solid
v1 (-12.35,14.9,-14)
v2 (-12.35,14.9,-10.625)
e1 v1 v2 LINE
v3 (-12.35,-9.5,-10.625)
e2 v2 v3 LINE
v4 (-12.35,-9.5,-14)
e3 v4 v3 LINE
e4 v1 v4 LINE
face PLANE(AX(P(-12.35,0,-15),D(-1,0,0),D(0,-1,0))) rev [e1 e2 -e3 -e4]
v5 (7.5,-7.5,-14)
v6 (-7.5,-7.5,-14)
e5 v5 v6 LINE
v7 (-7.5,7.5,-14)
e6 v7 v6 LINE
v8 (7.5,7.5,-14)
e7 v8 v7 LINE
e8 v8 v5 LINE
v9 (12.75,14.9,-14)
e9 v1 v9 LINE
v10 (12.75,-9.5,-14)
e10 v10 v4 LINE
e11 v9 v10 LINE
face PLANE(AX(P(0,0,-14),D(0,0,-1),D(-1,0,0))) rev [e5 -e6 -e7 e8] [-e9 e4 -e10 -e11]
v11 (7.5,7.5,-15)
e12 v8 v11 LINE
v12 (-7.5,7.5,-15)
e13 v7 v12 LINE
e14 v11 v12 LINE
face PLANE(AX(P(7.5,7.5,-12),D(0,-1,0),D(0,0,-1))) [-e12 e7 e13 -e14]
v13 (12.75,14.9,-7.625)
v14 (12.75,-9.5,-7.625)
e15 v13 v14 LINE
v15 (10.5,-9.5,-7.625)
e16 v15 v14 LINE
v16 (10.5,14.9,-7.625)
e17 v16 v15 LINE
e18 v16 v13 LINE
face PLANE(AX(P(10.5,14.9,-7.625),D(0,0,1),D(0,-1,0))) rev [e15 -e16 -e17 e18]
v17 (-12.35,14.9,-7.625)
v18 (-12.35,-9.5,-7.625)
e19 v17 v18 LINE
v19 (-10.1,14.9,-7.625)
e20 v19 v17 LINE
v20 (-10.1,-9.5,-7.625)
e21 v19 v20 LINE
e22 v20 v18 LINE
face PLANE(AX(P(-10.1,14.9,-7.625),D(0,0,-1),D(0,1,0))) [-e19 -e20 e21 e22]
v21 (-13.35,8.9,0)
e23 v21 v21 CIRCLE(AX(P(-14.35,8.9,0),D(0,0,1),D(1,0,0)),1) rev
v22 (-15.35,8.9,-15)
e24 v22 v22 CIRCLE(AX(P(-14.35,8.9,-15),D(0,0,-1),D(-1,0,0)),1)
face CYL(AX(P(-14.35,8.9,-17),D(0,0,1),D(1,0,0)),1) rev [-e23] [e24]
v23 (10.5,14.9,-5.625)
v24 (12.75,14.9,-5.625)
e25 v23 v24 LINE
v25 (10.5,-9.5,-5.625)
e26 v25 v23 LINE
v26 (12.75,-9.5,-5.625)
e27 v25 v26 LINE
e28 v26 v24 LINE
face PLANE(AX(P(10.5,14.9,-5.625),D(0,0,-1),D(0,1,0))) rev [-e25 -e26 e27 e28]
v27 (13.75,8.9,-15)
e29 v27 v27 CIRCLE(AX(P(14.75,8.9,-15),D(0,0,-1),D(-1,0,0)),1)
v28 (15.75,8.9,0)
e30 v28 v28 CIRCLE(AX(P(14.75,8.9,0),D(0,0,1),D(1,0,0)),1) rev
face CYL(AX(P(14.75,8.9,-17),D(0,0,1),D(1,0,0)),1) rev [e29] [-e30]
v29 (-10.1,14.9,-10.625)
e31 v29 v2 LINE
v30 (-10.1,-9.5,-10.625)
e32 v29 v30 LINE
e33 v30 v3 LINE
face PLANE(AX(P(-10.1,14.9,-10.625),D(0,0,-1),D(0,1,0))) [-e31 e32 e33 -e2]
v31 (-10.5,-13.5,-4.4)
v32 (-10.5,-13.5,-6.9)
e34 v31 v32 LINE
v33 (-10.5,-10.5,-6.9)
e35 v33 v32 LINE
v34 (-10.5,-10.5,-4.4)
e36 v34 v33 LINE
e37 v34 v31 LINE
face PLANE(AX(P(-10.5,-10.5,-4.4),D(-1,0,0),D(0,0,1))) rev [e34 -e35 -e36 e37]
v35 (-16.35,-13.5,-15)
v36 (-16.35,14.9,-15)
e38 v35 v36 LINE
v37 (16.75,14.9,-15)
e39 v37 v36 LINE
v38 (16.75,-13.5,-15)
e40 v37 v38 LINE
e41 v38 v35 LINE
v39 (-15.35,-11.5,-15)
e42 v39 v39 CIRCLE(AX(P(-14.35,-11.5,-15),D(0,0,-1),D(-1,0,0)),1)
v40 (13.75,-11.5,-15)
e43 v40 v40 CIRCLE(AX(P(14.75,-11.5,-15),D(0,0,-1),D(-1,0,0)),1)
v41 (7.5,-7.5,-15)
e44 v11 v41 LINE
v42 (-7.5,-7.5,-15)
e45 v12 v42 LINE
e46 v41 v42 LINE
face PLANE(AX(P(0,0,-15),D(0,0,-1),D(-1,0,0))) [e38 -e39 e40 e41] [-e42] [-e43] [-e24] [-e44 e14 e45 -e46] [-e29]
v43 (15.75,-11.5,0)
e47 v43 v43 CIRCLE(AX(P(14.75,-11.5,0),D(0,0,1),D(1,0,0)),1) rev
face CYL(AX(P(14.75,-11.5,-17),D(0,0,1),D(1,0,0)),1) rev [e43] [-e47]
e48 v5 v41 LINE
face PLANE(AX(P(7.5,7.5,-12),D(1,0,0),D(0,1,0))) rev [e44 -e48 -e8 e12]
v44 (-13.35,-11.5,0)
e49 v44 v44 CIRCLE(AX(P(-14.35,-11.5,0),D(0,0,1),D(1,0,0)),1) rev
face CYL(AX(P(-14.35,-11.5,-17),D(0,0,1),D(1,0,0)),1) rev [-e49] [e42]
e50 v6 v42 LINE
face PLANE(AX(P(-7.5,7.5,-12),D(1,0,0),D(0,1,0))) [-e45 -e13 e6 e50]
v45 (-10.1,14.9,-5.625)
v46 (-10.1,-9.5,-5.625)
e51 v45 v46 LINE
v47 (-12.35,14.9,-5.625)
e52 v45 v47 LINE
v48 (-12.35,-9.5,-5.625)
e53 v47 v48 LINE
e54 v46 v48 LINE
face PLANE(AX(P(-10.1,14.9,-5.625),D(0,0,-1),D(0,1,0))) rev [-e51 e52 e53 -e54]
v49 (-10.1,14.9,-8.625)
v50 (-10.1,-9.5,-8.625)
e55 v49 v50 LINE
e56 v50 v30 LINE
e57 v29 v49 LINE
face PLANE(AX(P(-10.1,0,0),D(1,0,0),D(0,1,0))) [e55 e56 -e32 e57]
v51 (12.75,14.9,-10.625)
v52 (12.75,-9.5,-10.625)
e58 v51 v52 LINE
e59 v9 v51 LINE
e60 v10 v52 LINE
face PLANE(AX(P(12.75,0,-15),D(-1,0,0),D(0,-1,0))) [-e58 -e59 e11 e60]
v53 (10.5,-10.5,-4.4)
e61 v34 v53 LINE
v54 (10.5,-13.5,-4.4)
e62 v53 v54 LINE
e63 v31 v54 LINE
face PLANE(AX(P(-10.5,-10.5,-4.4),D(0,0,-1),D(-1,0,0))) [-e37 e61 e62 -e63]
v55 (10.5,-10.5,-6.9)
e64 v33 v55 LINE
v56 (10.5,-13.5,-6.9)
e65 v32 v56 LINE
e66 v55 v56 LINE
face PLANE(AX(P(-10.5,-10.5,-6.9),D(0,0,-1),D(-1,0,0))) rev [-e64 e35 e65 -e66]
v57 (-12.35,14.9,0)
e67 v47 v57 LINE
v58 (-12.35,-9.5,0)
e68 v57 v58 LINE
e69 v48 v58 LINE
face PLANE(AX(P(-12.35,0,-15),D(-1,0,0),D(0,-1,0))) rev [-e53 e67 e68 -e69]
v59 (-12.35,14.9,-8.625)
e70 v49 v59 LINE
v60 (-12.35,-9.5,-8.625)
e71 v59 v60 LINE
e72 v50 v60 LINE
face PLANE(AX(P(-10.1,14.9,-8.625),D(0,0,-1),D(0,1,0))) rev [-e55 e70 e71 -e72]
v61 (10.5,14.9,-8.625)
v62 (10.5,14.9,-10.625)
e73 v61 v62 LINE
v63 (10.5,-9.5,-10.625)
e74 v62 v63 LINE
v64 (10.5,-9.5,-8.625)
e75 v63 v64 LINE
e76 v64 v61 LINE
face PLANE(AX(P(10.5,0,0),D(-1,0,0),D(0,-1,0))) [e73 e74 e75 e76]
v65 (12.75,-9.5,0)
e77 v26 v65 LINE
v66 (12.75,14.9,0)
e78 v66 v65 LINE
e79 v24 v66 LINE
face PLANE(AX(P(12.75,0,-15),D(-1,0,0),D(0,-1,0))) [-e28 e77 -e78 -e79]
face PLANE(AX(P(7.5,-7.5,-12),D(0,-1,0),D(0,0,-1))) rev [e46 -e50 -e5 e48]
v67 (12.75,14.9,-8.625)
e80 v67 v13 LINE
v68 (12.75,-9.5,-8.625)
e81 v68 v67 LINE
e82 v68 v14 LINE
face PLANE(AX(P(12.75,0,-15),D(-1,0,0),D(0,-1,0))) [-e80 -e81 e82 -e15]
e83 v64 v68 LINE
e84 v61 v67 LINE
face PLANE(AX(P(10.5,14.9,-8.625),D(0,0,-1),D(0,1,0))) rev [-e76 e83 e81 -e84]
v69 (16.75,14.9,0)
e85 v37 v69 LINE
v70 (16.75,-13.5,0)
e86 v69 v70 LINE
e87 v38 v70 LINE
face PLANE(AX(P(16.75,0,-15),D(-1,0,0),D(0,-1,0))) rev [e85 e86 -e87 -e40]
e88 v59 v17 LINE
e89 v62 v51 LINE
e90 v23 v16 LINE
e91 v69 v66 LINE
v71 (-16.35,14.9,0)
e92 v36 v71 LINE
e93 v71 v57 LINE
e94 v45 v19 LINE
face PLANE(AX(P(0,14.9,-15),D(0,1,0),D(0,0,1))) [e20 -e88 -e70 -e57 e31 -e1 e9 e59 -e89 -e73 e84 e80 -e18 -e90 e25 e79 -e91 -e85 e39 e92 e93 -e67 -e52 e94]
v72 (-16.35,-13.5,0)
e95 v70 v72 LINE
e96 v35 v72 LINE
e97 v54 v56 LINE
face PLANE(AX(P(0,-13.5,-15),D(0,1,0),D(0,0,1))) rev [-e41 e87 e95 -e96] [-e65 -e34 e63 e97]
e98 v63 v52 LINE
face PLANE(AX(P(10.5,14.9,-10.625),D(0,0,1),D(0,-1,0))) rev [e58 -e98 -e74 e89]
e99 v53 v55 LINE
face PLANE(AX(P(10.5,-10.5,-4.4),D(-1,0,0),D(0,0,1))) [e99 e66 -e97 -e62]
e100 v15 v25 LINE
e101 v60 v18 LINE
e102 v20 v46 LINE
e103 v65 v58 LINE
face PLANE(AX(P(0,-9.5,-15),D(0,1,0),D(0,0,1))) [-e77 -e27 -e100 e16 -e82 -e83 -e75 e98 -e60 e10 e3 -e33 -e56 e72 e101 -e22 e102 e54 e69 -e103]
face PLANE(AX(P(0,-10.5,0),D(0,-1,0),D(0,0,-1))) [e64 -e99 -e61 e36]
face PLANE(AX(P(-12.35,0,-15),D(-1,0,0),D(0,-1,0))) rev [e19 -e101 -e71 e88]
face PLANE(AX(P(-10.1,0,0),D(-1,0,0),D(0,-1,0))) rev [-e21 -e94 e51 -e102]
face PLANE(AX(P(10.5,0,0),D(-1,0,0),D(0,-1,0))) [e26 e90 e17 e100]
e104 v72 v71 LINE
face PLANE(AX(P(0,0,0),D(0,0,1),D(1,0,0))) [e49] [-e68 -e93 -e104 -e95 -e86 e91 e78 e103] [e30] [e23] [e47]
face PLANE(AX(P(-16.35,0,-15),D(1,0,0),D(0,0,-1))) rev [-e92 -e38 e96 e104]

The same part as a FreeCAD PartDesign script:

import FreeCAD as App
import Part
import Sketcher
Q = App.Units.Quantity

doc = App.newDocument("Part")
body = doc.addObject("PartDesign::Body", "Body")

# Sketch on XY plane
sketch1 = body.newObject("Sketcher::SketchObject", "Sketch")
sketch1.AttachmentSupport = (doc.getObject("XY_Plane"), [""])
sketch1.MapMode = "FlatFace"
sketch1.addGeometry([
    Part.Circle(App.Vector(0, 0, 0), App.Vector(0, 0, 1), 37),  # 0
    Part.Circle(App.Vector(-25.416453, -15.9375, 0), App.Vector(0, 0, 1), 1.5),  # 1
    Part.LineSegment(App.Vector(12.5, -17, 0), App.Vector(-12.5, -17, 0)),  # 2
    Part.LineSegment(App.Vector(-12.5, -17, 0), App.Vector(-12.5, -14, 0)),  # 3
    Part.LineSegment(App.Vector(-12.5, -14, 0), App.Vector(12.5, -14, 0)),  # 4
    Part.LineSegment(App.Vector(12.5, -14, 0), App.Vector(12.5, -17, 0)),  # 5
    Part.Circle(App.Vector(0, -27, 0), App.Vector(0, 0, 1), 1.5),  # 6
    Part.Circle(App.Vector(25.416453, -15.9375, 0), App.Vector(0, 0, 1), 1.5),  # 7
    Part.Circle(App.Vector(-22.874808, 14.34375, 0), App.Vector(0, 0, 1), 1.5),  # 8
    Part.Circle(App.Vector(22.874808, 14.34375, 0), App.Vector(0, 0, 1), 1.5),  # 9
    Part.Circle(App.Vector(0, 30, 0), App.Vector(0, 0, 1), 1.5),  # 10
], False)
sketch1.addConstraint([
    Sketcher.Constraint("Coincident", 2, 2, 3, 1),
    Sketcher.Constraint("Coincident", 3, 2, 4, 1),
    Sketcher.Constraint("Coincident", 4, 2, 5, 1),
    Sketcher.Constraint("Coincident", 5, 2, 2, 1),
    Sketcher.Constraint("Horizontal", 2),
    Sketcher.Constraint("Vertical", 3),
    Sketcher.Constraint("Horizontal", 4),
    Sketcher.Constraint("Vertical", 5),
    Sketcher.Constraint("Coincident", 0, 3, -1, 1),
    Sketcher.Constraint("Equal", 1, 6),
    Sketcher.Constraint("Equal", 6, 7),
    Sketcher.Constraint("Equal", 7, 8),
    Sketcher.Constraint("Equal", 8, 9),
    Sketcher.Constraint("Equal", 9, 10),
    Sketcher.Constraint("Symmetric", 1, 3, 7, 3, -2),
    Sketcher.Constraint("Symmetric", 8, 3, 9, 3, -2),
    Sketcher.Constraint("PointOnObject", 6, 3, -2),
    Sketcher.Constraint("PointOnObject", 10, 3, -2),
    Sketcher.Constraint("Diameter", 0, Q("74 mm")),
    Sketcher.Constraint("Diameter", 1, Q("3 mm")),
    Sketcher.Constraint("DistanceX", 2, 2, 2, 1, Q("25 mm")),
    Sketcher.Constraint("DistanceY", 3, 1, 3, 2, Q("3 mm")),
    Sketcher.Constraint("DistanceY", 6, 3, -1, 1, Q("27 mm")),
    Sketcher.Constraint("DistanceY", -1, 1, 10, 3, Q("30 mm")),
    Sketcher.Constraint("DistanceY", 2, 2, -1, 1, Q("17 mm")),
    Sketcher.Constraint("DistanceX", 2, 2, -1, 1, Q("12.5 mm")),
    Sketcher.Constraint("DistanceY", 1, 3, -1, 1, Q("15.9375 mm")),
    Sketcher.Constraint("DistanceY", -1, 1, 8, 3, Q("14.34375 mm")),
    Sketcher.Constraint("DistanceX", 8, 3, 7, 3, Q("48.291261 mm")),
    Sketcher.Constraint("DistanceX", 1, 3, -1, 1, Q("25.416453 mm")),
])
pad1 = body.newObject("PartDesign::Pad", "Pad")
pad1.Profile = sketch1
pad1.Length = 2

# Sketch on XY plane
sketch2 = body.newObject("Sketcher::SketchObject", "Sketch001")
sketch2.AttachmentSupport = (doc.getObject("XY_Plane"), [""])
sketch2.MapMode = "FlatFace"
sketch2.addGeometry([
    Part.LineSegment(App.Vector(12.75, 14.9, 0), App.Vector(16.75, 14.9, 0)),  # 0
    Part.LineSegment(App.Vector(16.75, 14.9, 0), App.Vector(16.75, -13.5, 0)),  # 1
    Part.LineSegment(App.Vector(16.75, -13.5, 0), App.Vector(-16.35, -13.5, 0)),  # 2
    Part.LineSegment(App.Vector(-16.35, -13.5, 0), App.Vector(-16.35, 14.9, 0)),  # 3
    Part.LineSegment(App.Vector(-16.35, 14.9, 0), App.Vector(-12.35, 14.9, 0)),  # 4
    Part.LineSegment(App.Vector(-12.35, 14.9, 0), App.Vector(-12.35, -9.5, 0)),  # 5
    Part.LineSegment(App.Vector(-12.35, -9.5, 0), App.Vector(12.75, -9.5, 0)),  # 6
    Part.LineSegment(App.Vector(12.75, -9.5, 0), App.Vector(12.75, 14.9, 0)),  # 7
], False)
sketch2.addConstraint([
    Sketcher.Constraint("Coincident", 0, 2, 1, 1),
    Sketcher.Constraint("Coincident", 1, 2, 2, 1),
    Sketcher.Constraint("Coincident", 2, 2, 3, 1),
    Sketcher.Constraint("Coincident", 3, 2, 4, 1),
    Sketcher.Constraint("Coincident", 4, 2, 5, 1),
    Sketcher.Constraint("Coincident", 5, 2, 6, 1),
    Sketcher.Constraint("Coincident", 6, 2, 7, 1),
    Sketcher.Constraint("Coincident", 7, 2, 0, 1),
    Sketcher.Constraint("Horizontal", 0),
    Sketcher.Constraint("Vertical", 1),
    Sketcher.Constraint("Horizontal", 2),
    Sketcher.Constraint("Vertical", 3),
    Sketcher.Constraint("Horizontal", 4),
    Sketcher.Constraint("Vertical", 5),
    Sketcher.Constraint("Horizontal", 6),
    Sketcher.Constraint("Vertical", 7),
    Sketcher.Constraint("Horizontal", 0, 2, 3, 2),
    Sketcher.Constraint("Equal", 0, 4),
    Sketcher.Constraint("DistanceX", 0, 1, 0, 2, Q("4 mm")),
    Sketcher.Constraint("DistanceX", 2, 2, 2, 1, Q("33.1 mm")),
    Sketcher.Constraint("DistanceY", 1, 2, 1, 1, Q("28.4 mm")),
    Sketcher.Constraint("DistanceY", 5, 2, 5, 1, Q("24.4 mm")),
    Sketcher.Constraint("DistanceY", -1, 1, 0, 2, Q("14.9 mm")),
    Sketcher.Constraint("DistanceX", -1, 1, 0, 2, Q("16.75 mm")),
])
pad2 = body.newObject("PartDesign::Pad", "Pad001")
pad2.Profile = sketch2
pad2.Length = 15
pad2.Reversed = True

# Sketch on YZ plane
sketch3 = body.newObject("Sketcher::SketchObject", "Sketch002")
sketch3.AttachmentSupport = (doc.getObject("YZ_Plane"), [""])
sketch3.MapMode = "FlatFace"
sketch3.AttachmentOffset = App.Placement(App.Vector(0, 0, -12.35), App.Rotation())
sketch3.addGeometry([
    Part.LineSegment(App.Vector(14.9, -8.625, 0), App.Vector(-13.5, -8.625, 0)),  # 0
    Part.LineSegment(App.Vector(-13.5, -8.625, 0), App.Vector(-13.5, -10.625, 0)),  # 1
    Part.LineSegment(App.Vector(-13.5, -10.625, 0), App.Vector(14.9, -10.625, 0)),  # 2
    Part.LineSegment(App.Vector(14.9, -10.625, 0), App.Vector(14.9, -8.625, 0)),  # 3
    Part.LineSegment(App.Vector(14.9, -5.625, 0), App.Vector(-13.5, -5.625, 0)),  # 4
    Part.LineSegment(App.Vector(-13.5, -5.625, 0), App.Vector(-13.5, -7.625, 0)),  # 5
    Part.LineSegment(App.Vector(-13.5, -7.625, 0), App.Vector(14.9, -7.625, 0)),  # 6
    Part.LineSegment(App.Vector(14.9, -7.625, 0), App.Vector(14.9, -5.625, 0)),  # 7
], False)
sketch3.addConstraint([
    Sketcher.Constraint("Coincident", 0, 2, 1, 1),
    Sketcher.Constraint("Coincident", 1, 2, 2, 1),
    Sketcher.Constraint("Coincident", 2, 2, 3, 1),
    Sketcher.Constraint("Coincident", 3, 2, 0, 1),
    Sketcher.Constraint("Coincident", 4, 2, 5, 1),
    Sketcher.Constraint("Coincident", 5, 2, 6, 1),
    Sketcher.Constraint("Coincident", 6, 2, 7, 1),
    Sketcher.Constraint("Coincident", 7, 2, 4, 1),
    Sketcher.Constraint("Horizontal", 0),
    Sketcher.Constraint("Vertical", 1),
    Sketcher.Constraint("Horizontal", 2),
    Sketcher.Constraint("Vertical", 3),
    Sketcher.Constraint("Horizontal", 4),
    Sketcher.Constraint("Vertical", 5),
    Sketcher.Constraint("Horizontal", 6),
    Sketcher.Constraint("Vertical", 7),
    Sketcher.Constraint("Vertical", 1, 2, 4, 2),
    Sketcher.Constraint("Vertical", 3, 2, 6, 2),
    Sketcher.Constraint("Equal", 3, 5),
    Sketcher.Constraint("DistanceY", 1, 2, 1, 1, Q("2 mm")),
    Sketcher.Constraint("DistanceX", 0, 2, 0, 1, Q("28.4 mm")),
    Sketcher.Constraint("DistanceY", 0, 2, 4, 2, Q("3 mm")),
    Sketcher.Constraint("DistanceX", 0, 2, -1, 1, Q("13.5 mm")),
    Sketcher.Constraint("DistanceY", 0, 2, -1, 1, Q("8.625 mm")),
])
pad3 = body.newObject("PartDesign::Pad", "Pad002")
pad3.Profile = sketch3
pad3.Length = 2.25

# Sketch on YZ plane
sketch4 = body.newObject("Sketcher::SketchObject", "Sketch003")
sketch4.AttachmentSupport = (doc.getObject("YZ_Plane"), [""])
sketch4.MapMode = "FlatFace"
sketch4.AttachmentOffset = App.Placement(App.Vector(0, 0, 12.75), App.Rotation())
sketch4.addGeometry([
    Part.LineSegment(App.Vector(14.9, -10.625, 0), App.Vector(-9.5, -10.625, 0)),  # 0
    Part.LineSegment(App.Vector(-9.5, -10.625, 0), App.Vector(-9.5, -8.625, 0)),  # 1
    Part.LineSegment(App.Vector(-9.5, -8.625, 0), App.Vector(14.9, -8.625, 0)),  # 2
    Part.LineSegment(App.Vector(14.9, -8.625, 0), App.Vector(14.9, -10.625, 0)),  # 3
    Part.LineSegment(App.Vector(14.9, -7.625, 0), App.Vector(-9.5, -7.625, 0)),  # 4
    Part.LineSegment(App.Vector(-9.5, -7.625, 0), App.Vector(-9.5, -5.625, 0)),  # 5
    Part.LineSegment(App.Vector(-9.5, -5.625, 0), App.Vector(14.9, -5.625, 0)),  # 6
    Part.LineSegment(App.Vector(14.9, -5.625, 0), App.Vector(14.9, -7.625, 0)),  # 7
], False)
sketch4.addConstraint([
    Sketcher.Constraint("Coincident", 0, 2, 1, 1),
    Sketcher.Constraint("Coincident", 1, 2, 2, 1),
    Sketcher.Constraint("Coincident", 2, 2, 3, 1),
    Sketcher.Constraint("Coincident", 3, 2, 0, 1),
    Sketcher.Constraint("Coincident", 4, 2, 5, 1),
    Sketcher.Constraint("Coincident", 5, 2, 6, 1),
    Sketcher.Constraint("Coincident", 6, 2, 7, 1),
    Sketcher.Constraint("Coincident", 7, 2, 4, 1),
    Sketcher.Constraint("Horizontal", 0),
    Sketcher.Constraint("Vertical", 1),
    Sketcher.Constraint("Horizontal", 2),
    Sketcher.Constraint("Vertical", 3),
    Sketcher.Constraint("Horizontal", 4),
    Sketcher.Constraint("Vertical", 5),
    Sketcher.Constraint("Horizontal", 6),
    Sketcher.Constraint("Vertical", 7),
    Sketcher.Constraint("Vertical", 1, 2, 4, 2),
    Sketcher.Constraint("Vertical", 3, 2, 6, 2),
    Sketcher.Constraint("Equal", 3, 5),
    Sketcher.Constraint("DistanceY", 1, 1, 1, 2, Q("2 mm")),
    Sketcher.Constraint("DistanceX", 0, 2, 0, 1, Q("24.4 mm")),
    Sketcher.Constraint("DistanceY", 1, 2, 4, 2, Q("1 mm")),
    Sketcher.Constraint("DistanceX", 0, 2, -1, 1, Q("9.5 mm")),
    Sketcher.Constraint("DistanceY", 0, 2, -1, 1, Q("10.625 mm")),
])
pad4 = body.newObject("PartDesign::Pad", "Pad003")
pad4.Profile = sketch4
pad4.Length = 2.25
pad4.Reversed = True

# Sketch on XY plane
sketch5 = body.newObject("Sketcher::SketchObject", "Sketch004")
sketch5.AttachmentSupport = (doc.getObject("XY_Plane"), [""])
sketch5.MapMode = "FlatFace"
sketch5.AttachmentOffset = App.Placement(App.Vector(0, 0, -15), App.Rotation())
sketch5.addGeometry([
    Part.LineSegment(App.Vector(16.75, 14.9, 0), App.Vector(16.75, -13.5, 0)),
    Part.LineSegment(App.Vector(16.75, -13.5, 0), App.Vector(-16.35, -13.5, 0)),
    Part.LineSegment(App.Vector(-16.35, -13.5, 0), App.Vector(-16.35, 14.9, 0)),
    Part.LineSegment(App.Vector(-16.35, 14.9, 0), App.Vector(16.75, 14.9, 0)),
], False)
sketch5.addConstraint([
    Sketcher.Constraint("Coincident", 0, 2, 1, 1),
    Sketcher.Constraint("Coincident", 1, 2, 2, 1),
    Sketcher.Constraint("Coincident", 2, 2, 3, 1),
    Sketcher.Constraint("Coincident", 3, 2, 0, 1),
    Sketcher.Constraint("Vertical", 0),
    Sketcher.Constraint("Horizontal", 1),
    Sketcher.Constraint("Vertical", 2),
    Sketcher.Constraint("Horizontal", 3),
    Sketcher.Constraint("DistanceX", 1, 2, 1, 1, Q("33.1 mm")),
    Sketcher.Constraint("DistanceY", 0, 2, 0, 1, Q("28.4 mm")),
    Sketcher.Constraint("DistanceY", 0, 2, -1, 1, Q("13.5 mm")),
    Sketcher.Constraint("DistanceX", -1, 1, 0, 2, Q("16.75 mm")),
])
pad5 = body.newObject("PartDesign::Pad", "Pad004")
pad5.Profile = sketch5
pad5.Length = 1

# Sketch on XY plane
sketch6 = body.newObject("Sketcher::SketchObject", "Sketch005")
sketch6.AttachmentSupport = (doc.getObject("XY_Plane"), [""])
sketch6.MapMode = "FlatFace"
sketch6.AttachmentOffset = App.Placement(App.Vector(0, 0, -15), App.Rotation())
sketch6.addGeometry([
    Part.LineSegment(App.Vector(7.5, 7.5, 0), App.Vector(7.5, -7.5, 0)),
    Part.LineSegment(App.Vector(7.5, -7.5, 0), App.Vector(-7.5, -7.5, 0)),
    Part.LineSegment(App.Vector(-7.5, -7.5, 0), App.Vector(-7.5, 7.5, 0)),
    Part.LineSegment(App.Vector(-7.5, 7.5, 0), App.Vector(7.5, 7.5, 0)),
], False)
sketch6.addConstraint([
    Sketcher.Constraint("Coincident", 0, 2, 1, 1),
    Sketcher.Constraint("Coincident", 1, 2, 2, 1),
    Sketcher.Constraint("Coincident", 2, 2, 3, 1),
    Sketcher.Constraint("Coincident", 3, 2, 0, 1),
    Sketcher.Constraint("Vertical", 0),
    Sketcher.Constraint("Horizontal", 1),
    Sketcher.Constraint("Vertical", 2),
    Sketcher.Constraint("Horizontal", 3),
    Sketcher.Constraint("Symmetric", 0, 2, 2, 2, -1, 1),
    Sketcher.Constraint("Equal", 3, 0),
    Sketcher.Constraint("DistanceX", 1, 2, 1, 1, Q("15 mm")),
])
pocket1 = body.newObject("PartDesign::Pocket", "Pocket")
pocket1.Profile = sketch6
pocket1.Length = 3
pocket1.Reversed = True

# Sketch on XZ plane
sketch7 = body.newObject("Sketcher::SketchObject", "Sketch006")
sketch7.AttachmentSupport = (doc.getObject("XZ_Plane"), [""])
sketch7.MapMode = "FlatFace"
sketch7.AttachmentOffset = App.Placement(App.Vector(0, 0, 13.5), App.Rotation())
sketch7.addGeometry([
    Part.LineSegment(App.Vector(-10.5, -4.4, 0), App.Vector(-10.5, -6.9, 0)),
    Part.LineSegment(App.Vector(-10.5, -6.9, 0), App.Vector(10.5, -6.9, 0)),
    Part.LineSegment(App.Vector(10.5, -6.9, 0), App.Vector(10.5, -4.4, 0)),
    Part.LineSegment(App.Vector(10.5, -4.4, 0), App.Vector(-10.5, -4.4, 0)),
], False)
sketch7.addConstraint([
    Sketcher.Constraint("Coincident", 0, 2, 1, 1),
    Sketcher.Constraint("Coincident", 1, 2, 2, 1),
    Sketcher.Constraint("Coincident", 2, 2, 3, 1),
    Sketcher.Constraint("Coincident", 3, 2, 0, 1),
    Sketcher.Constraint("Vertical", 0),
    Sketcher.Constraint("Horizontal", 1),
    Sketcher.Constraint("Vertical", 2),
    Sketcher.Constraint("Horizontal", 3),
    Sketcher.Constraint("DistanceX", 1, 1, 1, 2, Q("21 mm")),
    Sketcher.Constraint("DistanceY", 0, 2, 0, 1, Q("2.5 mm")),
    Sketcher.Constraint("DistanceX", 0, 2, -1, 1, Q("10.5 mm")),
    Sketcher.Constraint("DistanceY", 0, 2, -1, 1, Q("6.9 mm")),
])
pocket2 = body.newObject("PartDesign::Pocket", "Pocket001")
pocket2.Profile = sketch7
pocket2.Length = 3

# Sketch on XY plane
sketch8 = body.newObject("Sketcher::SketchObject", "Sketch007")
sketch8.AttachmentSupport = (doc.getObject("XY_Plane"), [""])
sketch8.MapMode = "FlatFace"
sketch8.AttachmentOffset = App.Placement(App.Vector(0, 0, 2), App.Rotation())
sketch8.addGeometry([
    Part.Circle(App.Vector(-14.35, 8.9, 0), App.Vector(0, 0, 1), 1),
    Part.Circle(App.Vector(-14.35, -11.5, 0), App.Vector(0, 0, 1), 1),
    Part.Circle(App.Vector(14.75, -11.5, 0), App.Vector(0, 0, 1), 1),
    Part.Circle(App.Vector(14.75, 8.9, 0), App.Vector(0, 0, 1), 1),
], False)
sketch8.addConstraint([
    Sketcher.Constraint("Equal", 0, 1),
    Sketcher.Constraint("Equal", 1, 2),
    Sketcher.Constraint("Equal", 2, 3),
    Sketcher.Constraint("Horizontal", 1, 3, 2, 3),
    Sketcher.Constraint("Horizontal", 0, 3, 3, 3),
    Sketcher.Constraint("Vertical", 0, 3, 1, 3),
    Sketcher.Constraint("Vertical", 2, 3, 3, 3),
    Sketcher.Constraint("Diameter", 0, Q("2 mm")),
    Sketcher.Constraint("DistanceY", -1, 1, 0, 3, Q("8.9 mm")),
    Sketcher.Constraint("DistanceY", 1, 3, -1, 1, Q("11.5 mm")),
    Sketcher.Constraint("DistanceX", 1, 3, 2, 3, Q("29.1 mm")),
    Sketcher.Constraint("DistanceX", 0, 3, -1, 1, Q("14.35 mm")),
])
pocket3 = body.newObject("PartDesign::Pocket", "Pocket002")
pocket3.Profile = sketch8
pocket3.Length = 19

# Sketch on XY plane
sketch9 = body.newObject("Sketcher::SketchObject", "Sketch008")
sketch9.AttachmentSupport = (doc.getObject("XY_Plane"), [""])
sketch9.MapMode = "FlatFace"
sketch9.addGeometry(Part.Circle(App.Vector(0, 0, 0), App.Vector(0, 0, 1), 37), False)
sketch9.addConstraint([
    Sketcher.Constraint("Coincident", 0, 3, -1, 1),
    Sketcher.Constraint("Diameter", 0, Q("74 mm")),
])
pocket4 = body.newObject("PartDesign::Pocket", "Pocket003")
pocket4.Profile = sketch9
pocket4.Length = 2
pocket4.Reversed = True

doc.recompute()
